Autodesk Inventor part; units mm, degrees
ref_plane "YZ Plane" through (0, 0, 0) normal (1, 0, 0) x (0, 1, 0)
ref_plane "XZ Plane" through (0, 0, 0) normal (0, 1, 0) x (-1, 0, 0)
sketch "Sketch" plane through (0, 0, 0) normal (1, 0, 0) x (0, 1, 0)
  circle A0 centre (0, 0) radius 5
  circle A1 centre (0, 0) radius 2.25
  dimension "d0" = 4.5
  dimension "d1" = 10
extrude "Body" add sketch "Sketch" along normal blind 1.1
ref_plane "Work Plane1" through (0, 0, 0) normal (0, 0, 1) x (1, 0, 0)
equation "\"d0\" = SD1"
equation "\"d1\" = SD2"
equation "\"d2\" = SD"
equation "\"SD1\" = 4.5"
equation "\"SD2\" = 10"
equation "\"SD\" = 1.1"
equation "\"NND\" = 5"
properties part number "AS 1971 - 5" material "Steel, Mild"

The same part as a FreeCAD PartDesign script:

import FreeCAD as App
import Part
import Sketcher
Q = App.Units.Quantity

doc = App.newDocument("Part")
body = doc.addObject("PartDesign::Body", "Body")

sketch1 = body.newObject("Sketcher::SketchObject", "Sketch")
sketch1.AttachmentSupport = (doc.getObject("YZ_Plane"), [""])
sketch1.MapMode = "FlatFace"
sketch1.addGeometry(Part.Circle(App.Vector(0, 0, 0), App.Vector(0, 0, 1), 5), False)
sketch1.addGeometry(Part.Circle(App.Vector(0, 0, 0), App.Vector(0, 0, 1), 2.2), False)
sketch1.addConstraint(Sketcher.Constraint("Coincident", 0, 3, -1, 1))
sketch1.addConstraint(Sketcher.Constraint("Coincident", 1, 3, -1, 1))
sketch1.addConstraint(Sketcher.Constraint("Diameter", 0, Q("10 mm")))
sketch1.addConstraint(Sketcher.Constraint("Diameter", 1, Q("4.5 mm")))
pad1 = body.newObject("PartDesign::Pad", "Pad")
pad1.Profile = sketch1
pad1.Length = 1.1

doc.recompute()
